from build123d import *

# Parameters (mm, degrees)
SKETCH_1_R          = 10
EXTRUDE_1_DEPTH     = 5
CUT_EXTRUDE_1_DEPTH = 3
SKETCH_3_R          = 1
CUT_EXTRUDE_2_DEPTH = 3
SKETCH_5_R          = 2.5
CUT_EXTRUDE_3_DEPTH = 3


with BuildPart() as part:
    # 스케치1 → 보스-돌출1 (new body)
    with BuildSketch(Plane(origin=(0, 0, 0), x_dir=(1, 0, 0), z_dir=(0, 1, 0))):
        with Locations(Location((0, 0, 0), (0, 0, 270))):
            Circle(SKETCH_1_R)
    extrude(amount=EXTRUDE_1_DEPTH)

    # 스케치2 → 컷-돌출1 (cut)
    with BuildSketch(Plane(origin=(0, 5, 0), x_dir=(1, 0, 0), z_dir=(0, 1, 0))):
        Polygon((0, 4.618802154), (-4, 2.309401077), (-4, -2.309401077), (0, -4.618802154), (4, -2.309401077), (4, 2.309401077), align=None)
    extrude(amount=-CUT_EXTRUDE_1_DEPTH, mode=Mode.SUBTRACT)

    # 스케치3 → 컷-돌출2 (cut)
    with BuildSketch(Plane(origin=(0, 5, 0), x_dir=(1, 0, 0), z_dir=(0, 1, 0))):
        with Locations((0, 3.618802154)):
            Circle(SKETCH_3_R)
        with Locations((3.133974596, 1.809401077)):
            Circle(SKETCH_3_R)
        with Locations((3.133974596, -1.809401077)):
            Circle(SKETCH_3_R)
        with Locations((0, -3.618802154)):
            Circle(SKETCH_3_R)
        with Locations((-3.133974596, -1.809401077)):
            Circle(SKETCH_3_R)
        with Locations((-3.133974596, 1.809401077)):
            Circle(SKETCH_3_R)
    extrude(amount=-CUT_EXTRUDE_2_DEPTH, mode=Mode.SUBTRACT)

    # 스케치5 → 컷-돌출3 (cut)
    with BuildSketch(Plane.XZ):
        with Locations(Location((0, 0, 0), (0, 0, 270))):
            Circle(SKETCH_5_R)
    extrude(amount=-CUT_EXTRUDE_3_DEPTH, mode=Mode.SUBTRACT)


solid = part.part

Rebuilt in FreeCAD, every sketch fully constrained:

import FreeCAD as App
import Part
import Sketcher
from FreeCAD import Vector
Q = App.Units.Quantity


def add_polygon(sketch, points):
    """Adds a closed chain of lines whose ends are joined by coincident constraints."""
    first, n = sketch.GeometryCount, len(points)
    for a, b in zip(points, points[1:] + points[:1]):
        sketch.addGeometry(Part.LineSegment(App.Vector(*a, 0), App.Vector(*b, 0)), False)
    for i in range(n):
        sketch.addConstraint(Sketcher.Constraint("Coincident", first + i, 2, first + (i + 1) % n, 1))

doc = App.newDocument("Part")
body = doc.addObject("PartDesign::Body", "Body")

sketch1 = body.newObject("Sketcher::SketchObject", "Sketch")
sketch1.AttachmentSupport = (doc.getObject("XZ_Plane"), [""])
sketch1.MapMode = "FlatFace"
sketch1.addGeometry(Part.Circle(Vector(0, 0, 0), Vector(0, 0, 1), 10), False)
sketch1.addConstraint(Sketcher.Constraint("Coincident", 0, 3, -1, 1))
sketch1.addConstraint(Sketcher.Constraint("Diameter", 0, Q("20 mm")))
pad1 = body.newObject("PartDesign::Pad", "Pad")
pad1.Profile = sketch1
pad1.Length = 5
pad1.Reversed = True

sketch2 = body.newObject("Sketcher::SketchObject", "Sketch001")
sketch2.AttachmentSupport = (doc.getObject("XZ_Plane"), [""])
sketch2.MapMode = "FlatFace"
sketch2.AttachmentOffset = App.Placement(Vector(0, 0, -5), App.Rotation())
add_polygon(sketch2, [(0, -4.6), (-4, -2.3), (-4, 2.3), (0, 4.6), (4, 2.3), (4, -2.3)])
sketch2.addConstraint(Sketcher.Constraint("Vertical", 1))
sketch2.addConstraint(Sketcher.Constraint("Vertical", 4))
sketch2.addConstraint(Sketcher.Constraint("Symmetric", 0, 2, 3, 2, -1, 1))
sketch2.addConstraint(Sketcher.Constraint("Symmetric", 2, 2, 5, 2, -1, 1))
sketch2.addConstraint(Sketcher.Constraint("PointOnObject", 2, 2, -2))
sketch2.addConstraint(Sketcher.Constraint("Parallel", 2, 5))
sketch2.addConstraint(Sketcher.Constraint("Horizontal", 1, 2, 3, 2))
sketch2.addConstraint(Sketcher.Constraint("Angle", 0, Q("150 deg")))
sketch2.addConstraint(Sketcher.Constraint("DistanceX", 0, 2, -1, 1, Q("4 mm")))
sketch2.addConstraint(Sketcher.Constraint("DistanceY", 0, 2, -1, 1, Q("2.309401 mm")))
pocket1 = body.newObject("PartDesign::Pocket", "Pocket")
pocket1.Profile = sketch2
pocket1.Length = 3
pocket1.Reversed = True

sketch3 = body.newObject("Sketcher::SketchObject", "Sketch002")
sketch3.AttachmentSupport = (doc.getObject("XZ_Plane"), [""])
sketch3.MapMode = "FlatFace"
sketch3.AttachmentOffset = App.Placement(Vector(0, 0, -5), App.Rotation())
sketch3.addGeometry(Part.Circle(Vector(0, -3.6, 0), Vector(0, 0, 1), 1), False)
sketch3.addGeometry(Part.Circle(Vector(3.1, -1.8, 0), Vector(0, 0, 1), 1), False)
sketch3.addGeometry(Part.Circle(Vector(3.1, 1.8, 0), Vector(0, 0, 1), 1), False)
sketch3.addGeometry(Part.Circle(Vector(0, 3.6, 0), Vector(0, 0, 1), 1), False)
sketch3.addGeometry(Part.Circle(Vector(-3.1, 1.8, 0), Vector(0, 0, 1), 1), False)
sketch3.addGeometry(Part.Circle(Vector(-3.1, -1.8, 0), Vector(0, 0, 1), 1), False)
sketch3.addConstraint(Sketcher.Constraint("Equal", 0, 1))
sketch3.addConstraint(Sketcher.Constraint("Equal", 1, 2))
sketch3.addConstraint(Sketcher.Constraint("Equal", 2, 3))
sketch3.addConstraint(Sketcher.Constraint("Equal", 3, 4))
sketch3.addConstraint(Sketcher.Constraint("Equal", 4, 5))
sketch3.addConstraint(Sketcher.Constraint("Symmetric", 0, 3, 3, 3, -1, 1))
sketch3.addConstraint(Sketcher.Constraint("Symmetric", 1, 3, 4, 3, -1, 1))
sketch3.addConstraint(Sketcher.Constraint("Symmetric", 2, 3, 5, 3, -1, 1))
sketch3.addConstraint(Sketcher.Constraint("Symmetric", 2, 3, 4, 3, -2))
sketch3.addConstraint(Sketcher.Constraint("PointOnObject", 0, 3, -2))
sketch3.addConstraint(Sketcher.Constraint("Diameter", 0, Q("2 mm")))
sketch3.addConstraint(Sketcher.Constraint("DistanceY", 1, 3, -1, 1, Q("1.809401 mm")))
sketch3.addConstraint(Sketcher.Constraint("DistanceY", 0, 3, 1, 3, Q("1.809401 mm")))
sketch3.addConstraint(Sketcher.Constraint("DistanceX", 4, 3, 2, 3, Q("6.267949 mm")))
pocket2 = body.newObject("PartDesign::Pocket", "Pocket001")
pocket2.Profile = sketch3
pocket2.Length = 3
pocket2.Reversed = True

sketch4 = body.newObject("Sketcher::SketchObject", "Sketch003")
sketch4.AttachmentSupport = (doc.getObject("XZ_Plane"), [""])
sketch4.MapMode = "FlatFace"
sketch4.addGeometry(Part.Circle(Vector(0, 0, 0), Vector(0, 0, 1), 2.5), False)
sketch4.addConstraint(Sketcher.Constraint("Coincident", 0, 3, -1, 1))
sketch4.addConstraint(Sketcher.Constraint("Diameter", 0, Q("5 mm")))
pocket3 = body.newObject("PartDesign::Pocket", "Pocket002")
pocket3.Profile = sketch4
pocket3.Length = 3

doc.recompute()
